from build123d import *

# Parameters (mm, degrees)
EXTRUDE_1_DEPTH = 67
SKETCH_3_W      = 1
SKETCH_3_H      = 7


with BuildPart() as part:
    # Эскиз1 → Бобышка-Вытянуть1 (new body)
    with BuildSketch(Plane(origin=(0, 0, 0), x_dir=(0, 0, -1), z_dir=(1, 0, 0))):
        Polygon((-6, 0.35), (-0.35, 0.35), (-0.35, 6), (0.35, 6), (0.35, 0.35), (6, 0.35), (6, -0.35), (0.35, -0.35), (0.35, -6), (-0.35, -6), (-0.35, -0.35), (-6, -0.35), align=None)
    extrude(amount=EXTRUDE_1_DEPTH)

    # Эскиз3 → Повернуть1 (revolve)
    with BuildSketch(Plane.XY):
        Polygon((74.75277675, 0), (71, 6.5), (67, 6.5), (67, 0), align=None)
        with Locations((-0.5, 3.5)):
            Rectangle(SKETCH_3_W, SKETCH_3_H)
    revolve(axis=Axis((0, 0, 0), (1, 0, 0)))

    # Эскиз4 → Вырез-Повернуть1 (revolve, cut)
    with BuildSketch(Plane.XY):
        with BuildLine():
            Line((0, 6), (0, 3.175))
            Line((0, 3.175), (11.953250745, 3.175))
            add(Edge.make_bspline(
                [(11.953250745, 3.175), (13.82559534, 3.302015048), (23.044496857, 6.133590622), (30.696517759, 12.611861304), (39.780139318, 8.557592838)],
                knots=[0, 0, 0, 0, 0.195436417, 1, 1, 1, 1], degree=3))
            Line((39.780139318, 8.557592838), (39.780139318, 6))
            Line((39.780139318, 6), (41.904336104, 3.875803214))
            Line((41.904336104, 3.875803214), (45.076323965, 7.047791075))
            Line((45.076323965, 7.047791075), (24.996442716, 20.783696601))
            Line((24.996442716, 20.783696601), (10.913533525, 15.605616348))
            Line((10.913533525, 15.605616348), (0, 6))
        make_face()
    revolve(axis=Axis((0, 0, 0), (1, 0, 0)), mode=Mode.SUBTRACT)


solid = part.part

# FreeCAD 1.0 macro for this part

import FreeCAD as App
import Part
import Sketcher
Q = App.Units.Quantity


def add_polygon(sketch, points):
    """Adds a closed chain of lines whose ends are joined by coincident constraints."""
    first, n = sketch.GeometryCount, len(points)
    for a, b in zip(points, points[1:] + points[:1]):
        sketch.addGeometry(Part.LineSegment(App.Vector(*a, 0), App.Vector(*b, 0)), False)
    for i in range(n):
        sketch.addConstraint(Sketcher.Constraint("Coincident", first + i, 2, first + (i + 1) % n, 1))

doc = App.newDocument("Part")
body = doc.addObject("PartDesign::Body", "Body")

sketch1 = doc.addObject("Sketcher::SketchObject", "Sketch")
body.addObject(sketch1)
sketch1.AttachmentSupport = (doc.YZ_Plane, [""])
sketch1.MapMode = "FlatFace"
add_polygon(sketch1, [(0.3, 0.3), (0.3, 6), (-0.3, 6), (-0.3, 0.3), (-6, 0.3), (-6, -0.3), (-0.3, -0.3), (-0.3, -6), (0.3, -6), (0.3, -0.3), (6, -0.3), (6, 0.3)])
sketch1.addConstraint(Sketcher.Constraint("Vertical", 0))
sketch1.addConstraint(Sketcher.Constraint("Horizontal", 1))
sketch1.addConstraint(Sketcher.Constraint("Vertical", 2))
sketch1.addConstraint(Sketcher.Constraint("Horizontal", 3))
sketch1.addConstraint(Sketcher.Constraint("Vertical", 4))
sketch1.addConstraint(Sketcher.Constraint("Horizontal", 5))
sketch1.addConstraint(Sketcher.Constraint("Vertical", 6))
sketch1.addConstraint(Sketcher.Constraint("Horizontal", 7))
sketch1.addConstraint(Sketcher.Constraint("Vertical", 8))
sketch1.addConstraint(Sketcher.Constraint("Horizontal", 9))
sketch1.addConstraint(Sketcher.Constraint("Vertical", 10))
sketch1.addConstraint(Sketcher.Constraint("Horizontal", 11))
sketch1.addConstraint(Sketcher.Constraint("Symmetric", 0, 2, 6, 2, -1, 1))
sketch1.addConstraint(Sketcher.Constraint("Symmetric", 2, 2, 8, 2, -1, 1))
sketch1.addConstraint(Sketcher.Constraint("Symmetric", 4, 2, 10, 2, -1, 1))
sketch1.addConstraint(Sketcher.Constraint("Symmetric", 5, 2, 8, 2, -2))
sketch1.addConstraint(Sketcher.Constraint("Equal", 11, 0))
sketch1.addConstraint(Sketcher.Constraint("Equal", 7, 4))
sketch1.addConstraint(Sketcher.Constraint("DistanceX", 1, 2, 1, 1, 0.7))
sketch1.addConstraint(Sketcher.Constraint("DistanceY", -1, 1, 0, 2, 6.0))
pad1 = doc.addObject("PartDesign::Pad", "Pad")
body.addObject(pad1)
pad1.Profile = sketch1
pad1.Length = 67

sketch2 = doc.addObject("Sketcher::SketchObject", "Sketch001")
body.addObject(sketch2)
sketch2.AttachmentSupport = (doc.XY_Plane, [""])
sketch2.MapMode = "FlatFace"
add_polygon(sketch2, [(74.8, 0), (71, 6.5), (67, 6.5), (67, 0)])
add_polygon(sketch2, [(-1, 7), (-1, 0), (0, 0), (0, 7)])
sketch2.addConstraint(Sketcher.Constraint("Horizontal", 1))
sketch2.addConstraint(Sketcher.Constraint("Vertical", 2))
sketch2.addConstraint(Sketcher.Constraint("Horizontal", 3))
sketch2.addConstraint(Sketcher.Constraint("Vertical", 4))
sketch2.addConstraint(Sketcher.Constraint("Horizontal", 5))
sketch2.addConstraint(Sketcher.Constraint("Vertical", 6))
sketch2.addConstraint(Sketcher.Constraint("Horizontal", 7))
sketch2.addConstraint(Sketcher.Constraint("Coincident", 5, 2, -1, 1))
sketch2.addConstraint(Sketcher.Constraint("PointOnObject", 2, 2, -1))
sketch2.addConstraint(Sketcher.Constraint("DistanceX", 1, 2, 1, 1, 4.0))
sketch2.addConstraint(Sketcher.Constraint("DistanceX", 5, 1, 5, 2, 1.0))
sketch2.addConstraint(Sketcher.Constraint("DistanceY", 4, 2, 4, 1, 7.0))
sketch2.addConstraint(Sketcher.Constraint("Angle", 0, Q("120 deg")))
sketch2.addConstraint(Sketcher.Constraint("DistanceY", 2, 2, 2, 1, 6.5))
sketch2.addConstraint(Sketcher.Constraint("DistanceX", -1, 1, 0, 2, 71.0))
revolution = doc.addObject("PartDesign::Revolution", "Revolution")
body.addObject(revolution)
revolution.Profile = sketch2
revolution.ReferenceAxis = (sketch2, ["H_Axis"])
revolution.Angle = 360

sketch3 = doc.addObject("Sketcher::SketchObject", "Sketch002")
body.addObject(sketch3)
sketch3.AttachmentSupport = (doc.XY_Plane, [""])
sketch3.MapMode = "FlatFace"
sketch3.addGeometry(Part.LineSegment(App.Vector(0, 6, 0), App.Vector(0, 3.175, 0)), False)
sketch3.addGeometry(Part.LineSegment(App.Vector(0, 3.175, 0), App.Vector(11.953251, 3.175, 0)), False)
sketch3.addGeometry(Part.BSplineCurve([App.Vector(11.953251, 3.175, 0), App.Vector(13.825595, 3.302015, 0), App.Vector(23.044497, 6.133591, 0), App.Vector(30.696518, 12.611861, 0), App.Vector(39.780139, 8.557593, 0)], [4, 1, 4], [0, 0.195436417, 1], False, 3, [1, 1, 1, 1, 1], False), False)
sketch3.addGeometry(Part.LineSegment(App.Vector(39.780139, 8.557593, 0), App.Vector(39.780139, 6, 0)), False)
sketch3.addGeometry(Part.LineSegment(App.Vector(39.780139, 6, 0), App.Vector(41.904336, 3.875803, 0)), False)
sketch3.addGeometry(Part.LineSegment(App.Vector(41.904336, 3.875803, 0), App.Vector(45.076324, 7.047791, 0)), False)
sketch3.addGeometry(Part.LineSegment(App.Vector(45.076324, 7.047791, 0), App.Vector(24.996443, 20.783697, 0)), False)
sketch3.addGeometry(Part.LineSegment(App.Vector(24.996443, 20.783697, 0), App.Vector(10.913534, 15.605616, 0)), False)
sketch3.addGeometry(Part.LineSegment(App.Vector(10.913534, 15.605616, 0), App.Vector(0, 6, 0)), False)
sketch3.addConstraint(Sketcher.Constraint("Block", 2))
sketch3.addConstraint(Sketcher.Constraint("Coincident", 0, 2, 1, 1))
sketch3.addConstraint(Sketcher.Constraint("Coincident", 1, 2, 2, 1))
sketch3.addConstraint(Sketcher.Constraint("Coincident", 2, 2, 3, 1))
sketch3.addConstraint(Sketcher.Constraint("Coincident", 3, 2, 4, 1))
sketch3.addConstraint(Sketcher.Constraint("Coincident", 4, 2, 5, 1))
sketch3.addConstraint(Sketcher.Constraint("Coincident", 5, 2, 6, 1))
sketch3.addConstraint(Sketcher.Constraint("Coincident", 6, 2, 7, 1))
sketch3.addConstraint(Sketcher.Constraint("Coincident", 7, 2, 8, 1))
sketch3.addConstraint(Sketcher.Constraint("Coincident", 8, 2, 0, 1))
sketch3.addConstraint(Sketcher.Constraint("Vertical", 0))
sketch3.addConstraint(Sketcher.Constraint("Horizontal", 1))
sketch3.addConstraint(Sketcher.Constraint("Vertical", 3))
sketch3.addConstraint(Sketcher.Constraint("PointOnObject", 0, 2, -2))
sketch3.addConstraint(Sketcher.Constraint("Perpendicular", 4, 5))
sketch3.addConstraint(Sketcher.Constraint("Horizontal", 3, 2, 8, 2))
sketch3.addConstraint(Sketcher.Constraint("Angle", 4, Q("-45 deg")))
sketch3.addConstraint(Sketcher.Constraint("DistanceY", -1, 1, 3, 2, 6.0))
sketch3.addConstraint(Sketcher.Constraint("Distance", 5, 4.485868))
sketch3.addConstraint(Sketcher.Constraint("DistanceY", -1, 1, 5, 2, 7.047791))
sketch3.addConstraint(Sketcher.Constraint("DistanceX", 1, 2, 6, 2, 13.043192))
sketch3.addConstraint(Sketcher.Constraint("DistanceX", 7, 2, 6, 2, 14.082909))
sketch3.addConstraint(Sketcher.Constraint("DistanceY", 7, 2, 6, 2, 5.17808))
sketch3.addConstraint(Sketcher.Constraint("Distance", 6, 24.328517))
groove = doc.addObject("PartDesign::Groove", "Groove")
body.addObject(groove)
groove.Profile = sketch3
groove.ReferenceAxis = (sketch3, ["H_Axis"])
groove.Angle = 360

doc.recompute()
